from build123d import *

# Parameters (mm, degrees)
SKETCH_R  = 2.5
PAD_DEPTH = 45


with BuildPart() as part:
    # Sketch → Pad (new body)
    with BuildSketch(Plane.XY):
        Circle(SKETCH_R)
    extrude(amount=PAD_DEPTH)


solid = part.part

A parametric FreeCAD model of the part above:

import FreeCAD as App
import Part
import Sketcher
from FreeCAD import Vector
Q = App.Units.Quantity

doc = App.newDocument("Part")
body = doc.addObject("PartDesign::Body", "Body")

sketch1 = body.newObject("Sketcher::SketchObject", "Sketch")
sketch1.AttachmentSupport = (doc.getObject("XY_Plane"), [""])
sketch1.MapMode = "FlatFace"
sketch1.addGeometry(Part.Circle(Vector(0, 0, 0), Vector(0, 0, 1), 2.5), False)
sketch1.addConstraint(Sketcher.Constraint("Coincident", 0, 3, -1, 1))
sketch1.addConstraint(Sketcher.Constraint("Diameter", 0, Q("5 mm")))
pad1 = body.newObject("PartDesign::Pad", "Pad")
pad1.Profile = sketch1
pad1.Length = 45

doc.recompute()
